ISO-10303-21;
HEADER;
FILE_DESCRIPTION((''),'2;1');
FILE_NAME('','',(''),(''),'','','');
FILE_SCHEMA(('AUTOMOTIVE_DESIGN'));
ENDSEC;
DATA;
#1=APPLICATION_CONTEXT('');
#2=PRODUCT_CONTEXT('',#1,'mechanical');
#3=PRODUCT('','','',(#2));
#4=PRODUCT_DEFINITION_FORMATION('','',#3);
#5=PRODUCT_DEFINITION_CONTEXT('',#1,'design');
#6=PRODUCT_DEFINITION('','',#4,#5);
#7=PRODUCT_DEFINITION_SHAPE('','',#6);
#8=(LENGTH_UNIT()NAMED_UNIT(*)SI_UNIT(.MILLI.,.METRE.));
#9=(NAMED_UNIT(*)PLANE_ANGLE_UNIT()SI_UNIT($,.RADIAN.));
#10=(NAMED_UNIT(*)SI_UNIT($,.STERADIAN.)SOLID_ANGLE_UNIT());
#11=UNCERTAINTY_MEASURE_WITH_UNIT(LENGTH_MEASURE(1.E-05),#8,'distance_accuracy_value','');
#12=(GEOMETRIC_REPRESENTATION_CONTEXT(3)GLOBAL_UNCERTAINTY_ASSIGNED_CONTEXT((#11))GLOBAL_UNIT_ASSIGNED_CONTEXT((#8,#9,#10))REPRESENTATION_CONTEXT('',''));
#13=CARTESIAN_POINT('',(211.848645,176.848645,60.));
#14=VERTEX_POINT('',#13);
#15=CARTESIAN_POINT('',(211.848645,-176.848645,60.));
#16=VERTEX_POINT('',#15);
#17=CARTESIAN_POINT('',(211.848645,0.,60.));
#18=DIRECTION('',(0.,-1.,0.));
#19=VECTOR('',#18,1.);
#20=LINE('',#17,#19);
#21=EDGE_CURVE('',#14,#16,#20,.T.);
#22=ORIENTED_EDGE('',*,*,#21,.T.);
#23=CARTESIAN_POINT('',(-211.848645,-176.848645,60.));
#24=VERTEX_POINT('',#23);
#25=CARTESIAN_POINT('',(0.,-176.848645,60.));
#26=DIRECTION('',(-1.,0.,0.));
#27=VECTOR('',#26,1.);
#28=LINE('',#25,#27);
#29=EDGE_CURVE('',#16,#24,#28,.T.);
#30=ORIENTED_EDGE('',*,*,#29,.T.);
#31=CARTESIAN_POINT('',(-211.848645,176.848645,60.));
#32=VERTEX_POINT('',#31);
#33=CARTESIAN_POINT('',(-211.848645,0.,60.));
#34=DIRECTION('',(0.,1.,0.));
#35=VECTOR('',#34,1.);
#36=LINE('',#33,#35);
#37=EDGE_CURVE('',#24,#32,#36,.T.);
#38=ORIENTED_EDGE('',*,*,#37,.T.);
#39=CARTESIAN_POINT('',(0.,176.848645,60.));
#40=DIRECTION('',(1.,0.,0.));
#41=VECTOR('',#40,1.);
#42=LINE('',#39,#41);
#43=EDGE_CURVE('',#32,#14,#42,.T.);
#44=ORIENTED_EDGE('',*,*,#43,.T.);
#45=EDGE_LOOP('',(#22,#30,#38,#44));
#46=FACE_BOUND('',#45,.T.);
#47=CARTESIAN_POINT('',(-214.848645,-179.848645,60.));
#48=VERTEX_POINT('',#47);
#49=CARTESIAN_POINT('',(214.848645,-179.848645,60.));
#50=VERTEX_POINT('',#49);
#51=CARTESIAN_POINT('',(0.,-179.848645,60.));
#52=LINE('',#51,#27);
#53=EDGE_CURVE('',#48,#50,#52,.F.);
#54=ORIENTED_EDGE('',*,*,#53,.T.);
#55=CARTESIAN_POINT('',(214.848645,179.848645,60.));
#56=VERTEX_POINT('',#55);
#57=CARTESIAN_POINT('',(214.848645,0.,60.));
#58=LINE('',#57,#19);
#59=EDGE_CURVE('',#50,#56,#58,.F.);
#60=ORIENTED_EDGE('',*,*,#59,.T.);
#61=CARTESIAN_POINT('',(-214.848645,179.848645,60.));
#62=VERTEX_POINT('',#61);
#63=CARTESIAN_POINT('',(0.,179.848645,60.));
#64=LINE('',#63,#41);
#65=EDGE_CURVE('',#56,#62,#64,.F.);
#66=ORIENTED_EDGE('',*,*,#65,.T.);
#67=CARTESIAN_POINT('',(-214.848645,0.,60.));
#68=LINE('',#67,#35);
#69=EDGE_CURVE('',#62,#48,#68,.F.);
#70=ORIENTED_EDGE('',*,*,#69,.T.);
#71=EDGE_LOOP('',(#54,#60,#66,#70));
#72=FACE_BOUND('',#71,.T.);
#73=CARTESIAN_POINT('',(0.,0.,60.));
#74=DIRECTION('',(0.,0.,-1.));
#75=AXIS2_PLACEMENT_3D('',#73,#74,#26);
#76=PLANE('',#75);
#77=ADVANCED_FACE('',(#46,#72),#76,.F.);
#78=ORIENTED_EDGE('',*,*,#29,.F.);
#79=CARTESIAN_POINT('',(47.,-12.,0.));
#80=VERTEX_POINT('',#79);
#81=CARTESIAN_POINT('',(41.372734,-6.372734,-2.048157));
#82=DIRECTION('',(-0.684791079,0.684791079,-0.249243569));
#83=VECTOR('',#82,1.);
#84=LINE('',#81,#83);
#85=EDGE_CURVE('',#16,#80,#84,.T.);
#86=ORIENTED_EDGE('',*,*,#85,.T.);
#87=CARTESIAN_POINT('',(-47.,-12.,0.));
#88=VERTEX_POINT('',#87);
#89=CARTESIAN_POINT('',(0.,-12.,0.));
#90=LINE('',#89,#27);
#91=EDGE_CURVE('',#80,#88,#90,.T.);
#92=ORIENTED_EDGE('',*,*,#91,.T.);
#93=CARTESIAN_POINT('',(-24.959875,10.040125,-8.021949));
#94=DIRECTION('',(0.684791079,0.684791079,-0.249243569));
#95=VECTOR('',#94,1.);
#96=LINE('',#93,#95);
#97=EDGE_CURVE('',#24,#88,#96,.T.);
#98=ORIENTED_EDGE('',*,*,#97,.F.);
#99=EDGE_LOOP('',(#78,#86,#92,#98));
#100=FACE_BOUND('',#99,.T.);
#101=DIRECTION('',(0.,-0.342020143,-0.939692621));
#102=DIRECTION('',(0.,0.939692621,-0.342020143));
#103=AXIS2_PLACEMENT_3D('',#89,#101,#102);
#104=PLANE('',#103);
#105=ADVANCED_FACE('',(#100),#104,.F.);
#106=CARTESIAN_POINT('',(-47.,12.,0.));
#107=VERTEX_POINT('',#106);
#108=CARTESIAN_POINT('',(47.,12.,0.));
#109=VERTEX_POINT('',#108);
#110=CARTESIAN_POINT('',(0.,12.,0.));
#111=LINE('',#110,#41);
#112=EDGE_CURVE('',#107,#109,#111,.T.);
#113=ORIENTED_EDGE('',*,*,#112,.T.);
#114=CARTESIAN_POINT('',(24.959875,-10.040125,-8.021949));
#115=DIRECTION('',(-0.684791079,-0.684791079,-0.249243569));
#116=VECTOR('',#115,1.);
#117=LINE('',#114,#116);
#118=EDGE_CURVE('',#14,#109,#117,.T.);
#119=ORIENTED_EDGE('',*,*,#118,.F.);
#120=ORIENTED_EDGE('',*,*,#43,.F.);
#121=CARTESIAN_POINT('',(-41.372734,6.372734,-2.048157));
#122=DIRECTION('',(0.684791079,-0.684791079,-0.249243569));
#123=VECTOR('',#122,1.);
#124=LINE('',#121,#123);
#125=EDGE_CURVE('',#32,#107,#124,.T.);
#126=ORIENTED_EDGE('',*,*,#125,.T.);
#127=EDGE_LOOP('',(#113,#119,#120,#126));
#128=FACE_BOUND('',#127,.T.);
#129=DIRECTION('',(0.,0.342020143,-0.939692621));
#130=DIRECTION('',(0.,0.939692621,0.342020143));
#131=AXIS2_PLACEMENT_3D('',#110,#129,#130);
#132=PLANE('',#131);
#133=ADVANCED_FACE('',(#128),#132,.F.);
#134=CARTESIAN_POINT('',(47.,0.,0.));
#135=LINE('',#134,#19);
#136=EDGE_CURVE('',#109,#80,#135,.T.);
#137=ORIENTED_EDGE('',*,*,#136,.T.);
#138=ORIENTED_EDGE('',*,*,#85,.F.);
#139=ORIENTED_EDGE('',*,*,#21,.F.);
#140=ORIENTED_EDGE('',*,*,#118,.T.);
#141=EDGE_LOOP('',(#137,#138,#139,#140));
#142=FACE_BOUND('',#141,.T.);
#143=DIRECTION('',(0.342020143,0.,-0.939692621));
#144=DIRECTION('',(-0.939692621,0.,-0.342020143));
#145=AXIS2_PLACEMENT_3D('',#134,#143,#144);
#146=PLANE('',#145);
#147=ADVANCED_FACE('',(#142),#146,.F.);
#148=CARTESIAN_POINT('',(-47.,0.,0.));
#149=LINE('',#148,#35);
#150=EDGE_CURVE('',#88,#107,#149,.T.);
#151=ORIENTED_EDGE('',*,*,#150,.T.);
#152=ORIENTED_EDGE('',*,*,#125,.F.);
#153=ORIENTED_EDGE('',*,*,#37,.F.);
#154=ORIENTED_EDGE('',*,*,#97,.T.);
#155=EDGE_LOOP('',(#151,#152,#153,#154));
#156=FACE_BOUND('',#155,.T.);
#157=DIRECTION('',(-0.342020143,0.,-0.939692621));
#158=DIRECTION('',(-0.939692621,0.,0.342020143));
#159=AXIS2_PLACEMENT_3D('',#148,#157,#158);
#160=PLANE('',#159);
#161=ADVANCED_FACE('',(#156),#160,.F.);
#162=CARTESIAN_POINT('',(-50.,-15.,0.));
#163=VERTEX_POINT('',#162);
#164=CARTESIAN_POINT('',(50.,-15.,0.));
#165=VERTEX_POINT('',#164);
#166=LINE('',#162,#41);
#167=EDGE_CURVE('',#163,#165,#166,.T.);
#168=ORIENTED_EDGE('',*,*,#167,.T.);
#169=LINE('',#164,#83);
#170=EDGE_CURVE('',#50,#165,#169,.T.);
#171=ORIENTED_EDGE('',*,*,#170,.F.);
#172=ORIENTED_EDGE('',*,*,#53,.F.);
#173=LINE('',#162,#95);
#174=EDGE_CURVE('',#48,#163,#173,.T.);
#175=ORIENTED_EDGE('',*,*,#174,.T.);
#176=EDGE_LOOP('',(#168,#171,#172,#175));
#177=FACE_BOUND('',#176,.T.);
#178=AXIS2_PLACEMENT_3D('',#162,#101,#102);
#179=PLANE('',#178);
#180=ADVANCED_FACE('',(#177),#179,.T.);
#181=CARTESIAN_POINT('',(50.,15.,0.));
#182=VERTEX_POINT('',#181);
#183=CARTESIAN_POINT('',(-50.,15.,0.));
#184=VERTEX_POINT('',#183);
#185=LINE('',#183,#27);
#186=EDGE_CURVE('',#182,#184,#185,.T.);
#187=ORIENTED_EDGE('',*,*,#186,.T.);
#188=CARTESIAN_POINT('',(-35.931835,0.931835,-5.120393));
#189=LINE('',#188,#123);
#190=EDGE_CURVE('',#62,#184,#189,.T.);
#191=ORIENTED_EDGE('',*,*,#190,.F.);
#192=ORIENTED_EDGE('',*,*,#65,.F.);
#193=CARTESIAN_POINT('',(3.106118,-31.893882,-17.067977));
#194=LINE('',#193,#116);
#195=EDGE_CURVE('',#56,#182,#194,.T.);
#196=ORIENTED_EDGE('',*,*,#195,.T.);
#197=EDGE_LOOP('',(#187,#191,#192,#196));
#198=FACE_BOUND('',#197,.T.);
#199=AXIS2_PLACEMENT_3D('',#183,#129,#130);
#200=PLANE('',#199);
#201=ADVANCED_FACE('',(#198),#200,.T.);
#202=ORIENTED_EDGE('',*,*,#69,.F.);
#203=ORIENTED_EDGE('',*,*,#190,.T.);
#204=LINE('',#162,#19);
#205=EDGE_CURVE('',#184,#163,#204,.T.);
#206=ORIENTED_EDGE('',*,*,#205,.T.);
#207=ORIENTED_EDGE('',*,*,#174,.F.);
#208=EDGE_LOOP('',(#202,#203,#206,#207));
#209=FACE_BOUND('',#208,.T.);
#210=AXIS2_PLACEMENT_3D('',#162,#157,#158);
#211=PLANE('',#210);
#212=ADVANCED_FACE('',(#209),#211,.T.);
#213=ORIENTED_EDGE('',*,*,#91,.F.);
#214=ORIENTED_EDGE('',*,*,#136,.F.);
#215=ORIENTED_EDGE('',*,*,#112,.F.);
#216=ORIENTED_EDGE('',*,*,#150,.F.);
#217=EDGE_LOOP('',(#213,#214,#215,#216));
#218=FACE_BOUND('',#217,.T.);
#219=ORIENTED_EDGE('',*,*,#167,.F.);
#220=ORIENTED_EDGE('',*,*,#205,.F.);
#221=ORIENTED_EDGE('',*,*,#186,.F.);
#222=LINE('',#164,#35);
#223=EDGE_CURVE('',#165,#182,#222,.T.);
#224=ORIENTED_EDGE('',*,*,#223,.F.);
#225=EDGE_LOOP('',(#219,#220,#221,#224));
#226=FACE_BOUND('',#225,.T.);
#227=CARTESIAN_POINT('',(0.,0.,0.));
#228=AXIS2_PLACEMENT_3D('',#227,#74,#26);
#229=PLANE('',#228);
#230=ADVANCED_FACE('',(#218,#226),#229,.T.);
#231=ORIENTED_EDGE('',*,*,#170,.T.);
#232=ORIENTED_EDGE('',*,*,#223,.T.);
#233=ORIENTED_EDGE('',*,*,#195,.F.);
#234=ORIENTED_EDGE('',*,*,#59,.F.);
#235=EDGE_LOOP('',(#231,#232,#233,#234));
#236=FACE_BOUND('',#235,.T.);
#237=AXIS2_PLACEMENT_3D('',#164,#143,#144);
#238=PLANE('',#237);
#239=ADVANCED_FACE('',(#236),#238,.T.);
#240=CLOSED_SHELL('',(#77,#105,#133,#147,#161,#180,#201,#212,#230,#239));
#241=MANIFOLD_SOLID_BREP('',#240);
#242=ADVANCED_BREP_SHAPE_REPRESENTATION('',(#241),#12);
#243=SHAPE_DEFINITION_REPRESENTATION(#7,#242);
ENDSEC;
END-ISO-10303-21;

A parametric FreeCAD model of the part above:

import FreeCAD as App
import Part
import Sketcher
from FreeCAD import Vector
Q = App.Units.Quantity


def add_polygon(sketch, points):
    """Adds a closed chain of lines whose ends are joined by coincident constraints."""
    first, n = sketch.GeometryCount, len(points)
    for a, b in zip(points, points[1:] + points[:1]):
        sketch.addGeometry(Part.LineSegment(App.Vector(*a, 0), App.Vector(*b, 0)), False)
    for i in range(n):
        sketch.addConstraint(Sketcher.Constraint("Coincident", first + i, 2, first + (i + 1) % n, 1))

doc = App.newDocument("Part")
params = doc.addObject("Spreadsheet::Sheet", "Params")
for row, (alias, value) in enumerate([
    ("sketch1_width", "100 mm"),
    ("sketch1_height", "30 mm"),
    ("pad1_length", "60 mm"),
    ("pad1_taper", "70 deg"),
    ("sketch2_width", "94 mm"),
    ("sketch2_height", "24 mm"),
    ("pocket1_length", "60 mm"),
    ("pocket1_taper", "70 deg"),
], start=1):
    params.set(f"A{row}", alias)
    params.set(f"B{row}", "=" + value)
    params.setAlias(f"B{row}", alias)

body = doc.addObject("PartDesign::Body", "Body")

# Sketch on XY plane
sketch1 = body.newObject("Sketcher::SketchObject", "Sketch")
sketch1.AttachmentSupport = (doc.getObject("XY_Plane"), [""])
sketch1.MapMode = "FlatFace"
add_polygon(sketch1, [(-50, 15), (-50, -15), (50, -15), (50, 15)])  # lines 0-3
sketch1.addConstraint(Sketcher.Constraint("Vertical", 0))
sketch1.addConstraint(Sketcher.Constraint("Horizontal", 1))
sketch1.addConstraint(Sketcher.Constraint("Vertical", 2))
sketch1.addConstraint(Sketcher.Constraint("Horizontal", 3))
sketch1.addConstraint(Sketcher.Constraint("Symmetric", 0, 2, 2, 2, -1, 1))
sketch1.addConstraint(Sketcher.Constraint("DistanceX", 1, 1, 1, 2, Q("100 mm")))
sketch1.addConstraint(Sketcher.Constraint("DistanceY", 0, 2, 0, 1, Q("30 mm")))
sketch1.setExpression("Constraints[9]", "Params.sketch1_width")
sketch1.setExpression("Constraints[10]", "Params.sketch1_height")
pad1 = body.newObject("PartDesign::Pad", "Pad")
pad1.Profile = sketch1
pad1.setExpression("Length", "Params.pad1_length")
pad1.setExpression("TaperAngle", "Params.pad1_taper")

# Sketch on XY plane
sketch2 = body.newObject("Sketcher::SketchObject", "Sketch001")
sketch2.AttachmentSupport = (doc.getObject("XY_Plane"), [""])
sketch2.MapMode = "FlatFace"
add_polygon(sketch2, [(47, 12), (47, -12), (-47, -12), (-47, 12)])  # lines 0-3
sketch2.addConstraint(Sketcher.Constraint("Vertical", 0))
sketch2.addConstraint(Sketcher.Constraint("Horizontal", 1))
sketch2.addConstraint(Sketcher.Constraint("Vertical", 2))
sketch2.addConstraint(Sketcher.Constraint("Horizontal", 3))
sketch2.addConstraint(Sketcher.Constraint("Symmetric", 0, 2, 2, 2, -1, 1))
sketch2.addConstraint(Sketcher.Constraint("DistanceX", 1, 2, 1, 1, Q("94 mm")))
sketch2.addConstraint(Sketcher.Constraint("DistanceY", 0, 2, 0, 1, Q("24 mm")))
sketch2.setExpression("Constraints[9]", "Params.sketch2_width")
sketch2.setExpression("Constraints[10]", "Params.sketch2_height")
pocket1 = body.newObject("PartDesign::Pocket", "Pocket")
pocket1.Profile = sketch2
pocket1.setExpression("Length", "Params.pocket1_length")
pocket1.Reversed = True
pocket1.setExpression("TaperAngle", "Params.pocket1_taper")

doc.recompute()
